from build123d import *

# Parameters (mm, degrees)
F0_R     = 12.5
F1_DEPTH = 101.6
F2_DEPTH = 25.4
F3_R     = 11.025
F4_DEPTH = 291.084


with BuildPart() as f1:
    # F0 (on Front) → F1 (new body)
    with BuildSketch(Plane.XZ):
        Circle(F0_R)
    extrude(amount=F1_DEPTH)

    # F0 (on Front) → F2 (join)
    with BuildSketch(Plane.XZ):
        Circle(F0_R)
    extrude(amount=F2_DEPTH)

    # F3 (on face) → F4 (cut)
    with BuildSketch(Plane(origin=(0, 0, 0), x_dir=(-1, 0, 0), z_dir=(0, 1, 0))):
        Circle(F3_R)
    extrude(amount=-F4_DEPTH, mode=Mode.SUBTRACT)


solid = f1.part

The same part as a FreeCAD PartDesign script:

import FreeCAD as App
import Part
import Sketcher
from FreeCAD import Vector
Q = App.Units.Quantity

doc = App.newDocument("Part")
body = doc.addObject("PartDesign::Body", "Body")

sketch1 = body.newObject("Sketcher::SketchObject", "Sketch")
sketch1.AttachmentSupport = (doc.getObject("XZ_Plane"), [""])
sketch1.MapMode = "FlatFace"
sketch1.addGeometry(Part.Circle(Vector(0, 0, 0), Vector(0, 0, 1), 12.5), False)
sketch1.addConstraint([
    Sketcher.Constraint("Coincident", 0, 3, -1, 1),
    Sketcher.Constraint("Diameter", 0, Q("25 mm")),
])
pad1 = body.newObject("PartDesign::Pad", "Pad")
pad1.Profile = sketch1
pad1.Length = Q("4 in")

sketch2 = body.newObject("Sketcher::SketchObject", "Sketch001")
sketch2.AttachmentSupport = (doc.getObject("XZ_Plane"), [""])
sketch2.MapMode = "FlatFace"
sketch2.addGeometry(Part.Circle(Vector(0, 0, 0), Vector(0, 0, 1), 12.5), False)
sketch2.addConstraint([
    Sketcher.Constraint("Coincident", 0, 3, -1, 1),
    Sketcher.Constraint("Diameter", 0, Q("25 mm")),
])
pad2 = body.newObject("PartDesign::Pad", "Pad001")
pad2.Profile = sketch2
pad2.Length = Q("1 in")

sketch3 = body.newObject("Sketcher::SketchObject", "Sketch002")
sketch3.AttachmentSupport = (doc.getObject("XZ_Plane"), [""])
sketch3.MapMode = "FlatFace"
sketch3.addGeometry(Part.Circle(Vector(0, 0, 0), Vector(0, 0, 1), 11.025), False)
sketch3.addConstraint([
    Sketcher.Constraint("Coincident", 0, 3, -1, 1),
    Sketcher.Constraint("Diameter", 0, Q("22.05 mm")),
])
pocket1 = body.newObject("PartDesign::Pocket", "Pocket")
pocket1.Profile = sketch3
pocket1.Length = Q("11.46 in")
pocket1.Reversed = True

doc.recompute()
